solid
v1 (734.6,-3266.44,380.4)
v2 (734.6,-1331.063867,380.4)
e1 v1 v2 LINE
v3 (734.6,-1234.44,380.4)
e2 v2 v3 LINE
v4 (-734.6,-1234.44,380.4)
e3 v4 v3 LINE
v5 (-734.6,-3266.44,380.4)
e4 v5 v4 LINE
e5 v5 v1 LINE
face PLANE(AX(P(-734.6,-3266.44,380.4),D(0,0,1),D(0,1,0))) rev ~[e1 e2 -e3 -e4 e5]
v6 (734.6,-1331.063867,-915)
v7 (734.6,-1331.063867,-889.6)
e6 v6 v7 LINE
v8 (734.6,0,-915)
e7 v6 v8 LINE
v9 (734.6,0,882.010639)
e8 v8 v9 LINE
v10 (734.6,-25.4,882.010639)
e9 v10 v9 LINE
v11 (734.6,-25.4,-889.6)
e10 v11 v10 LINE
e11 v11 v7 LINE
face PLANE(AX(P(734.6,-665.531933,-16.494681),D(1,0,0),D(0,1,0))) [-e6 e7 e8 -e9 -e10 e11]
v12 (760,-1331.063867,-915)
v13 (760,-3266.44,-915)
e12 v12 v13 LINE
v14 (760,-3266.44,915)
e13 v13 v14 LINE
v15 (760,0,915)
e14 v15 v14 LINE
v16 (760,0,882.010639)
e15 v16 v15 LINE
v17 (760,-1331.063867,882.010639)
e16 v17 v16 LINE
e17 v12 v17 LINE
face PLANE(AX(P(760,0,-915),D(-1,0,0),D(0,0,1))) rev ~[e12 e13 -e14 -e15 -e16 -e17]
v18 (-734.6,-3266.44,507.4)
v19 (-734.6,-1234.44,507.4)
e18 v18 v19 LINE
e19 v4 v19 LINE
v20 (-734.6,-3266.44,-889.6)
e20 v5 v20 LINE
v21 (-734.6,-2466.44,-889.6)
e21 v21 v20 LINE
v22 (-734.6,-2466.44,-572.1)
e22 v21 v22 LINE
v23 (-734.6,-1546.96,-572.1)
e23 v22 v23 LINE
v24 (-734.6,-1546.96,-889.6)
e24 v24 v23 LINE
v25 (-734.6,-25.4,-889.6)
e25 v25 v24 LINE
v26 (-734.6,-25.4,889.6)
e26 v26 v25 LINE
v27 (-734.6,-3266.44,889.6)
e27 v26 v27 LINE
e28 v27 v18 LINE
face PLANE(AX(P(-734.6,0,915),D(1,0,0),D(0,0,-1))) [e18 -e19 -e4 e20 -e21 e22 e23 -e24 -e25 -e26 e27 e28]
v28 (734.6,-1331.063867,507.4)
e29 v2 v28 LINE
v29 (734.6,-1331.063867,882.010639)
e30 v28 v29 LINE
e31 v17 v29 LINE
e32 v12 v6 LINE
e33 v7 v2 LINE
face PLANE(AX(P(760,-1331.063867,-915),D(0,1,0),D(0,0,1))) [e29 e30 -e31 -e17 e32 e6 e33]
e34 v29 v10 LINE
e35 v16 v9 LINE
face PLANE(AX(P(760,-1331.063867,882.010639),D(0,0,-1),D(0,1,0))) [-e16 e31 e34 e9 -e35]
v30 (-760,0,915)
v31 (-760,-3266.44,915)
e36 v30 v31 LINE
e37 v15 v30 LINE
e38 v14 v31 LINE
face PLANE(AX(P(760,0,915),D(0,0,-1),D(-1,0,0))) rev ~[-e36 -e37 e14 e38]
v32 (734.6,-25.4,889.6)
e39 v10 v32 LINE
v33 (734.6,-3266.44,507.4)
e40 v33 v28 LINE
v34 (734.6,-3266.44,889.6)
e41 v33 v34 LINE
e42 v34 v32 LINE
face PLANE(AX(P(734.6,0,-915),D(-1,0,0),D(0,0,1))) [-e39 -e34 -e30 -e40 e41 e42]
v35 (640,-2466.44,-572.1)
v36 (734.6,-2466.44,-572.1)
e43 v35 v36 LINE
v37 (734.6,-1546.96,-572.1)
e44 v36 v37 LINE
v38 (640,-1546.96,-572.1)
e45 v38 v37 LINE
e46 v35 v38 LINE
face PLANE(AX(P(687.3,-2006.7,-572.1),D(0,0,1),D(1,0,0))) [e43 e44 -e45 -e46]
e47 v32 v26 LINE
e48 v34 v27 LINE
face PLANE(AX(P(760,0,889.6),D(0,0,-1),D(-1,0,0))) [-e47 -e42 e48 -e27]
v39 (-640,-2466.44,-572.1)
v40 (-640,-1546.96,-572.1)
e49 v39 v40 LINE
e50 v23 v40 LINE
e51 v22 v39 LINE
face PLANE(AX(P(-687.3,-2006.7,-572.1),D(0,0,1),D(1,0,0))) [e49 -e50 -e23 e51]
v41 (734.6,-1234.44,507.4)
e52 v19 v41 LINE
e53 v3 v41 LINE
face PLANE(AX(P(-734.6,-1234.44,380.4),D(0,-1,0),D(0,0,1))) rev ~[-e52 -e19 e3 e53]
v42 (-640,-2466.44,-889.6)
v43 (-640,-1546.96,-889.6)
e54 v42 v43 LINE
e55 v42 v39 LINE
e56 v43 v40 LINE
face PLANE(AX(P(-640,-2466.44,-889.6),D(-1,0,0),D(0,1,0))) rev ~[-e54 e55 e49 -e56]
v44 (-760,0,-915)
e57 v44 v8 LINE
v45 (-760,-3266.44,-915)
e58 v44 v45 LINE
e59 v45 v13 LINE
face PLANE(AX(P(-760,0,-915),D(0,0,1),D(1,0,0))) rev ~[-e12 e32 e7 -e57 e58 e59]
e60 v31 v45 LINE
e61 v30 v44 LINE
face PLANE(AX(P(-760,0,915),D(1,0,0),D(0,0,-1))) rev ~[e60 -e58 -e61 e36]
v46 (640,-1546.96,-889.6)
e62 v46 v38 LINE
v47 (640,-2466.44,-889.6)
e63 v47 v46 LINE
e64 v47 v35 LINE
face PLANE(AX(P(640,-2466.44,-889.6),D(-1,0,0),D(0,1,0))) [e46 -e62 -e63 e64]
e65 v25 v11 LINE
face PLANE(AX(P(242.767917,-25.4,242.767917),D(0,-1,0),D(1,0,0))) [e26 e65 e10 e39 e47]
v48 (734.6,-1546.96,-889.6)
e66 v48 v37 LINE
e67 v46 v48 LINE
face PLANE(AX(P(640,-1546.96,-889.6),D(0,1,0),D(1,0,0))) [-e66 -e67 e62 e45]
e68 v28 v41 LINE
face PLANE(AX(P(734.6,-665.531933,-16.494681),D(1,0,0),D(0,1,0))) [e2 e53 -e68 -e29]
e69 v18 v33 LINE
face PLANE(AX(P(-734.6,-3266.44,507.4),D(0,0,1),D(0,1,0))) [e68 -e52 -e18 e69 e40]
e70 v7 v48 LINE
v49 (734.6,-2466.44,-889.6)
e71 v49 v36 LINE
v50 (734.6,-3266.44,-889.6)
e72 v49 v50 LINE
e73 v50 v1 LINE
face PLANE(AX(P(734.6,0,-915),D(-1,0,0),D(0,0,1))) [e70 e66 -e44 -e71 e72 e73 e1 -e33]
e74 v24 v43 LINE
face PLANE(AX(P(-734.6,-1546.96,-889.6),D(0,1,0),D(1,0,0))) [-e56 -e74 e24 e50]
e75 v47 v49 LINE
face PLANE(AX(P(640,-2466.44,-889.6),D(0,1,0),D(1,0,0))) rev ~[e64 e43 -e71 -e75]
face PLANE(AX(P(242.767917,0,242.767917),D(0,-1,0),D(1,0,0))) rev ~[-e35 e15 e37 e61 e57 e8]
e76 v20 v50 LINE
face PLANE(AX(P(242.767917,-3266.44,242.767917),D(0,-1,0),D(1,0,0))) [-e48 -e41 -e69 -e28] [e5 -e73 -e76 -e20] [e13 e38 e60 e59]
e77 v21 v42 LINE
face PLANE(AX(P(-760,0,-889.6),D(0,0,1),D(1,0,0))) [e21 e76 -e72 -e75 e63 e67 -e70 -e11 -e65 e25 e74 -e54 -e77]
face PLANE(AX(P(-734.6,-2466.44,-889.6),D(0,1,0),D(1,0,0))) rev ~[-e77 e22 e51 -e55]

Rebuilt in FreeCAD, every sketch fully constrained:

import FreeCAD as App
import Part
import Sketcher

V = App.Vector
Q = App.Units.Quantity


def faces_at(feature, points):
    """Names of the faces that lie closest to the given points."""
    faces = feature.Shape.Faces
    near = lambda p: min(range(len(faces)), key=lambda i: faces[i].distToShape(Part.Vertex(*p))[0])
    return sorted({f"Face{near(p) + 1}" for p in points})


def add_polygon(sketch, points):
    """Adds a closed chain of lines whose ends are joined by coincident constraints."""
    first, n = sketch.GeometryCount, len(points)
    for a, b in zip(points, points[1:] + points[:1]):
        sketch.addGeometry(Part.LineSegment(App.Vector(*a, 0), App.Vector(*b, 0)), False)
    for i in range(n):
        sketch.addConstraint(Sketcher.Constraint("Coincident", first + i, 2, first + (i + 1) % n, 1))

doc = App.newDocument("Part")
body = doc.addObject("PartDesign::Body", "Body")

sketch1 = doc.addObject("Sketcher::SketchObject", "Sketch")
body.addObject(sketch1)
sketch1.AttachmentSupport = (doc.XZ_Plane, [""])
sketch1.MapMode = "FlatFace"
add_polygon(sketch1, [(760, 915), (-760, 915), (-760, -915), (760, -915)])
sketch1.addConstraint(Sketcher.Constraint("Horizontal", 0))
sketch1.addConstraint(Sketcher.Constraint("Vertical", 1))
sketch1.addConstraint(Sketcher.Constraint("Horizontal", 2))
sketch1.addConstraint(Sketcher.Constraint("Vertical", 3))
sketch1.addConstraint(Sketcher.Constraint("Symmetric", 0, 2, 2, 2, -1, 1))
sketch1.addConstraint(Sketcher.Constraint("DistanceX", 0, 2, 0, 1, Q("1520 mm")))
sketch1.addConstraint(Sketcher.Constraint("DistanceY", 1, 2, 1, 1, Q("1830 mm")))
pad1 = doc.addObject("PartDesign::Pad", "Pad")
body.addObject(pad1)
pad1.Profile = sketch1
pad1.Length = Q("128.6 in")
doc.recompute()

thickness = doc.addObject("PartDesign::Thickness", "Thickness")
body.addObject(thickness)
thickness.Base = (pad1, faces_at(pad1, [(0, -3266.44, 0)]))
thickness.Value = Q("1 in")
thickness.Reversed = True
thickness.Join = "Arc"

sketch2 = doc.addObject("Sketcher::SketchObject", "Sketch001")
body.addObject(sketch2)
sketch2.AttachmentSupport = (doc.XY_Plane, [""])
sketch2.MapMode = "FlatFace"
sketch2.AttachmentOffset = App.Placement(V(0, 0, -889.6), App.Rotation())
add_polygon(sketch2, [(-735, -1547), (-735, -2466), (-640, -2466), (-640, -1547)])
add_polygon(sketch2, [(640, -1547), (640, -2466), (735, -2466), (735, -1547)])
sketch2.addConstraint(Sketcher.Constraint("Vertical", 0))
sketch2.addConstraint(Sketcher.Constraint("Horizontal", 1))
sketch2.addConstraint(Sketcher.Constraint("Vertical", 2))
sketch2.addConstraint(Sketcher.Constraint("Horizontal", 3))
sketch2.addConstraint(Sketcher.Constraint("Vertical", 4))
sketch2.addConstraint(Sketcher.Constraint("Horizontal", 5))
sketch2.addConstraint(Sketcher.Constraint("Vertical", 6))
sketch2.addConstraint(Sketcher.Constraint("Horizontal", 7))
sketch2.addConstraint(Sketcher.Constraint("Symmetric", 1, 2, 4, 2, -2))
sketch2.addConstraint(Sketcher.Constraint("Symmetric", 3, 2, 6, 2, -2))
sketch2.addConstraint(Sketcher.Constraint("DistanceY", 0, 2, 0, 1, Q("36.2 in")))
sketch2.addConstraint(Sketcher.Constraint("DistanceX", 1, 1, 1, 2, Q("94.6 mm")))
sketch2.addConstraint(Sketcher.Constraint("DistanceX", 0, 2, -1, 1, Q("734.6 mm")))
sketch2.addConstraint(Sketcher.Constraint("DistanceY", 0, 2, -1, 1, Q("2466.44 mm")))
pad2 = doc.addObject("PartDesign::Pad", "Pad001")
body.addObject(pad2)
pad2.Profile = sketch2
pad2.Length = Q("12.5 in")

sketch3 = doc.addObject("Sketcher::SketchObject", "Sketch002")
body.addObject(sketch3)
sketch3.AttachmentSupport = (doc.YZ_Plane, [""])
sketch3.MapMode = "FlatFace"
sketch3.AttachmentOffset = App.Placement(V(0, 0, -734.6), App.Rotation())
add_polygon(sketch3, [(-3266, 507), (-3266, 380), (-1234, 380), (-1234, 507)])
sketch3.addConstraint(Sketcher.Constraint("Vertical", 0))
sketch3.addConstraint(Sketcher.Constraint("Horizontal", 1))
sketch3.addConstraint(Sketcher.Constraint("Vertical", 2))
sketch3.addConstraint(Sketcher.Constraint("Horizontal", 3))
sketch3.addConstraint(Sketcher.Constraint("DistanceX", 1, 1, 1, 2, Q("80 in")))
sketch3.addConstraint(Sketcher.Constraint("DistanceY", 0, 2, 0, 1, Q("5 in")))
sketch3.addConstraint(Sketcher.Constraint("DistanceX", 0, 2, -1, 1, Q("128.6 in")))
sketch3.addConstraint(Sketcher.Constraint("DistanceY", -1, 1, 0, 2, Q("380.4 mm")))
pad3 = doc.addObject("PartDesign::Pad", "Pad002")
body.addObject(pad3)
pad3.Profile = sketch3
pad3.Type = "UpToLast"

sketch4 = doc.addObject("Sketcher::SketchObject", "Sketch003")
body.addObject(sketch4)
sketch4.AttachmentSupport = (doc.YZ_Plane, [""])
sketch4.MapMode = "FlatFace"
sketch4.AttachmentOffset = App.Placement(V(0, 0, 760), App.Rotation())
add_polygon(sketch4, [(-1331, 882), (-1331, -915), (0, -915), (0, 882)])
sketch4.addConstraint(Sketcher.Constraint("Vertical", 0))
sketch4.addConstraint(Sketcher.Constraint("Horizontal", 1))
sketch4.addConstraint(Sketcher.Constraint("Vertical", 2))
sketch4.addConstraint(Sketcher.Constraint("Horizontal", 3))
sketch4.addConstraint(Sketcher.Constraint("PointOnObject", 1, 2, -2))
sketch4.addConstraint(Sketcher.Constraint("DistanceY", 0, 2, 0, 1, Q("1797.010639 mm")))
sketch4.addConstraint(Sketcher.Constraint("DistanceY", 0, 2, -1, 1, Q("915 mm")))
sketch4.addConstraint(Sketcher.Constraint("DistanceX", 1, 1, 1, 2, Q("1331.063867 mm")))
pocket1 = doc.addObject("PartDesign::Pocket", "Pocket")
body.addObject(pocket1)
pocket1.Profile = sketch4
pocket1.Length = Q("1 in")

doc.recompute()
